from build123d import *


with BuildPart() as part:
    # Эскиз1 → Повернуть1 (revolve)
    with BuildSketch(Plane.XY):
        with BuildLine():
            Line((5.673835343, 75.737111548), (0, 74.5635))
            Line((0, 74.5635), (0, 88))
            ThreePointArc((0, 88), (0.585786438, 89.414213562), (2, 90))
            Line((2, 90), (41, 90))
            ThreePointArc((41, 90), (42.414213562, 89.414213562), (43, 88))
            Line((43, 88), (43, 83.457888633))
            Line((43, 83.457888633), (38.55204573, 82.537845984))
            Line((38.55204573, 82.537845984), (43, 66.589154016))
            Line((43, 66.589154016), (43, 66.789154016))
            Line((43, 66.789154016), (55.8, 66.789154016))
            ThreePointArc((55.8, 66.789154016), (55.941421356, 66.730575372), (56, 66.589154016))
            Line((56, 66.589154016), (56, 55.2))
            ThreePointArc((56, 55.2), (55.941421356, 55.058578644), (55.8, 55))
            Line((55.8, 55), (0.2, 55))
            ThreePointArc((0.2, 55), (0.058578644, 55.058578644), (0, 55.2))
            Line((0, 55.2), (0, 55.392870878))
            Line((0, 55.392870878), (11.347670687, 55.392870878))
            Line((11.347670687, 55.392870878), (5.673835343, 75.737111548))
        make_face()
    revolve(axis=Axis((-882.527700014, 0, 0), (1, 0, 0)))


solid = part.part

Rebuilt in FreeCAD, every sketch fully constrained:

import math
import FreeCAD as App
import Part
import Sketcher
from FreeCAD import Vector

doc = App.newDocument("Part")
body = doc.addObject("PartDesign::Body", "Body")

sketch1 = body.newObject("Sketcher::SketchObject", "Sketch")
sketch1.AttachmentSupport = (doc.getObject("XY_Plane"), [""])
sketch1.MapMode = "FlatFace"
sketch1.addGeometry(Part.LineSegment(Vector(0, 74.56, 0), Vector(5.67, 75.74, 0)), False)
sketch1.addGeometry(Part.LineSegment(Vector(5.67, 75.74, 0), Vector(11.35, 55.39, 0)), False)
sketch1.addGeometry(Part.LineSegment(Vector(11.35, 55.39, 0), Vector(0, 55.39, 0)), False)
sketch1.addGeometry(Part.LineSegment(Vector(0, 55.39, 0), Vector(0, 55.2, 0)), False)
sketch1.addGeometry(Part.ArcOfCircle(Part.Circle(Vector(0.2, 55.2, 0), Vector(0, 0, 1), 0.2), math.radians(-180), math.radians(-90)), False)
sketch1.addGeometry(Part.LineSegment(Vector(0.2, 55, 0), Vector(55.8, 55, 0)), False)
sketch1.addGeometry(Part.ArcOfCircle(Part.Circle(Vector(55.8, 55.2, 0), Vector(0, 0, 1), 0.2), math.radians(-90), math.radians(0)), False)
sketch1.addGeometry(Part.LineSegment(Vector(56, 55.2, 0), Vector(56, 66.59, 0)), False)
sketch1.addGeometry(Part.ArcOfCircle(Part.Circle(Vector(55.8, 66.59, 0), Vector(0, 0, 1), 0.2), math.radians(0), math.radians(90)), False)
sketch1.addGeometry(Part.LineSegment(Vector(55.8, 66.79, 0), Vector(43, 66.79, 0)), False)
sketch1.addGeometry(Part.LineSegment(Vector(43, 66.79, 0), Vector(43, 66.59, 0)), False)
sketch1.addGeometry(Part.LineSegment(Vector(43, 66.59, 0), Vector(38.55, 82.54, 0)), False)
sketch1.addGeometry(Part.LineSegment(Vector(38.55, 82.54, 0), Vector(43, 83.46, 0)), False)
sketch1.addGeometry(Part.LineSegment(Vector(43, 83.46, 0), Vector(43, 88, 0)), False)
sketch1.addGeometry(Part.ArcOfCircle(Part.Circle(Vector(41, 88, 0), Vector(0, 0, 1), 2), math.radians(0), math.radians(90)), False)
sketch1.addGeometry(Part.LineSegment(Vector(41, 90, 0), Vector(2, 90, 0)), False)
sketch1.addGeometry(Part.ArcOfCircle(Part.Circle(Vector(2, 88, 0), Vector(0, 0, 1), 2), math.radians(90), math.radians(180)), False)
sketch1.addGeometry(Part.LineSegment(Vector(0, 88, 0), Vector(0, 74.56, 0)), False)
sketch1.addConstraint(Sketcher.Constraint("Coincident", 0, 2, 1, 1))
sketch1.addConstraint(Sketcher.Constraint("Coincident", 1, 2, 2, 1))
sketch1.addConstraint(Sketcher.Constraint("Coincident", 2, 2, 3, 1))
sketch1.addConstraint(Sketcher.Constraint("Tangent", 3, 2, 4, 1))
sketch1.addConstraint(Sketcher.Constraint("Tangent", 4, 2, 5, 1))
sketch1.addConstraint(Sketcher.Constraint("Tangent", 5, 2, 6, 1))
sketch1.addConstraint(Sketcher.Constraint("Tangent", 6, 2, 7, 1))
sketch1.addConstraint(Sketcher.Constraint("Tangent", 7, 2, 8, 1))
sketch1.addConstraint(Sketcher.Constraint("Tangent", 8, 2, 9, 1))
sketch1.addConstraint(Sketcher.Constraint("Coincident", 9, 2, 10, 1))
sketch1.addConstraint(Sketcher.Constraint("Coincident", 10, 2, 11, 1))
sketch1.addConstraint(Sketcher.Constraint("Coincident", 11, 2, 12, 1))
sketch1.addConstraint(Sketcher.Constraint("Coincident", 12, 2, 13, 1))
sketch1.addConstraint(Sketcher.Constraint("Tangent", 13, 2, 14, 1))
sketch1.addConstraint(Sketcher.Constraint("Tangent", 14, 2, 15, 1))
sketch1.addConstraint(Sketcher.Constraint("Tangent", 15, 2, 16, 1))
sketch1.addConstraint(Sketcher.Constraint("Tangent", 16, 2, 17, 1))
sketch1.addConstraint(Sketcher.Constraint("Coincident", 17, 2, 0, 1))
sketch1.addConstraint(Sketcher.Constraint("Horizontal", 2))
sketch1.addConstraint(Sketcher.Constraint("Vertical", 3))
sketch1.addConstraint(Sketcher.Constraint("Horizontal", 5))
sketch1.addConstraint(Sketcher.Constraint("Vertical", 7))
sketch1.addConstraint(Sketcher.Constraint("Horizontal", 9))
sketch1.addConstraint(Sketcher.Constraint("Vertical", 10))
sketch1.addConstraint(Sketcher.Constraint("Vertical", 13))
sketch1.addConstraint(Sketcher.Constraint("Horizontal", 15))
sketch1.addConstraint(Sketcher.Constraint("Vertical", 17))
sketch1.addConstraint(Sketcher.Constraint("Equal", 4, 6))
sketch1.addConstraint(Sketcher.Constraint("Equal", 6, 8))
sketch1.addConstraint(Sketcher.Constraint("Equal", 14, 16))
sketch1.addConstraint(Sketcher.Constraint("PointOnObject", 2, 2, -2))
sketch1.addConstraint(Sketcher.Constraint("PointOnObject", 16, 2, -2))
sketch1.addConstraint(Sketcher.Constraint("Parallel", 1, 11))
sketch1.addConstraint(Sketcher.Constraint("Parallel", 0, 12))
sketch1.addConstraint(Sketcher.Constraint("Horizontal", 7, 2, 10, 2))
sketch1.addConstraint(Sketcher.Constraint("Vertical", 10, 2, 12, 2))
sketch1.addConstraint(Sketcher.Constraint("Radius", 14, 2.0))
sketch1.addConstraint(Sketcher.Constraint("Radius", 4, 0.2))
sketch1.addConstraint(Sketcher.Constraint("DistanceX", 15, 2, 15, 1, 39.0))
sketch1.addConstraint(Sketcher.Constraint("DistanceX", 5, 1, 5, 2, 55.6))
sketch1.addConstraint(Sketcher.Constraint("DistanceY", -1, 1, 14, 3, 88.0))
sketch1.addConstraint(Sketcher.Constraint("DistanceY", -1, 1, 4, 2, 55.0))
sketch1.addConstraint(Sketcher.Constraint("DistanceY", 17, 2, 17, 1, 13.4365))
sketch1.addConstraint(Sketcher.Constraint("DistanceX", 2, 2, 2, 1, 11.347671))
sketch1.addConstraint(Sketcher.Constraint("DistanceY", 3, 2, 3, 1, 0.192871))
sketch1.addConstraint(Sketcher.Constraint("DistanceY", 13, 1, 13, 2, 4.542111))
sketch1.addConstraint(Sketcher.Constraint("Distance", 1, 21.120619))
sketch1.addConstraint(Sketcher.Constraint("Distance", 12, 4.542111))
sketch1.addConstraint(Sketcher.Constraint("DistanceY", 7, 1, 7, 2, 11.389154))
revolution = body.newObject("PartDesign::Revolution", "Revolution")
revolution.Profile = sketch1
revolution.ReferenceAxis = (sketch1, ["H_Axis"])
revolution.Angle = 360

doc.recompute()
